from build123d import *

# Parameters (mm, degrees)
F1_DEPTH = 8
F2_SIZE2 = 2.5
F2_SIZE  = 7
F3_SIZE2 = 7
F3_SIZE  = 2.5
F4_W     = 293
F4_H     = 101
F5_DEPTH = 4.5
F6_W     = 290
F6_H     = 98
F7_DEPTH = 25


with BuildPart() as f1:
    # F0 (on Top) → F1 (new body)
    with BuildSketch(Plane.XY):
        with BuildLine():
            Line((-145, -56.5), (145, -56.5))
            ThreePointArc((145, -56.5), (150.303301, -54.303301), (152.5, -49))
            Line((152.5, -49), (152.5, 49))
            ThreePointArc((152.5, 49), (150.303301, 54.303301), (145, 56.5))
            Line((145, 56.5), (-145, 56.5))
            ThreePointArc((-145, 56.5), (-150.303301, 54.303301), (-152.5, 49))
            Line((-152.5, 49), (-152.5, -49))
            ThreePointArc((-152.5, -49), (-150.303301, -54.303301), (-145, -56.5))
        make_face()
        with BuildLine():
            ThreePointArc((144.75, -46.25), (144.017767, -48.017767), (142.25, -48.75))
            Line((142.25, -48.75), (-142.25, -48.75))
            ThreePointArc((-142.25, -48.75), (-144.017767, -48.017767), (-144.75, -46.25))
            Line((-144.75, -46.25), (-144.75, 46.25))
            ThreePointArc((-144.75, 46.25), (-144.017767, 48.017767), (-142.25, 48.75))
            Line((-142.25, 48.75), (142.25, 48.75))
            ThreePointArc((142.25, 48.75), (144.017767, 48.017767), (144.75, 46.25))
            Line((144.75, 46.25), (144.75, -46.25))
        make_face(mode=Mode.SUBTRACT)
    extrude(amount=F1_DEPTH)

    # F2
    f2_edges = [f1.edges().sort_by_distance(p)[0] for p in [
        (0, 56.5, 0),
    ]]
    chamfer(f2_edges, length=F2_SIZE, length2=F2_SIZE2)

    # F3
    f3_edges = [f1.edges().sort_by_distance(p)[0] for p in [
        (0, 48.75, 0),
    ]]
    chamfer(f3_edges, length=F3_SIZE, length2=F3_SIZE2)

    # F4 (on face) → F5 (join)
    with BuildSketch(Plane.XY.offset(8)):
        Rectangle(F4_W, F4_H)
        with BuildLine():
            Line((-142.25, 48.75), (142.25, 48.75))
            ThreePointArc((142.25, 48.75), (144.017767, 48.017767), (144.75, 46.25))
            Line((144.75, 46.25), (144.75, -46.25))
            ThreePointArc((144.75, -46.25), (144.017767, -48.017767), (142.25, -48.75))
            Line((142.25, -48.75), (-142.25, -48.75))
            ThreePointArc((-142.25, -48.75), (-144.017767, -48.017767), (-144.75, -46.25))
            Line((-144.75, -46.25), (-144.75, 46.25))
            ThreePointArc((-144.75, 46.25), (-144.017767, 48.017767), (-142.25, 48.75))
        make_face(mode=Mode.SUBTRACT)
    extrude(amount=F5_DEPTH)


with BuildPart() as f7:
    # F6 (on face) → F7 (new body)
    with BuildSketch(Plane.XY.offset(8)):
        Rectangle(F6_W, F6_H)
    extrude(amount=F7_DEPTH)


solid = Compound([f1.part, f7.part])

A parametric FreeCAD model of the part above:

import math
import FreeCAD as App
import Part
import Sketcher


def edges_at(feature, points):
    """Names of the edges that pass closest to the given points."""
    edges = feature.Shape.Edges
    near = lambda p: min(range(len(edges)), key=lambda i: edges[i].distToShape(Part.Vertex(*p))[0])
    return sorted({f"Edge{near(p) + 1}" for p in points})


def add_polygon(sketch, points):
    """Adds a closed chain of lines whose ends are joined by coincident constraints."""
    first, n = sketch.GeometryCount, len(points)
    for a, b in zip(points, points[1:] + points[:1]):
        sketch.addGeometry(Part.LineSegment(App.Vector(*a, 0), App.Vector(*b, 0)), False)
    for i in range(n):
        sketch.addConstraint(Sketcher.Constraint("Coincident", first + i, 2, first + (i + 1) % n, 1))

doc = App.newDocument("Part")
body = doc.addObject("PartDesign::Body", "Body")

sketch1 = body.newObject("Sketcher::SketchObject", "Sketch")
sketch1.AttachmentSupport = (doc.getObject("XY_Plane"), [""])
sketch1.MapMode = "FlatFace"
sketch1.addGeometry([
    Part.LineSegment(App.Vector(-145, -56.5, 0), App.Vector(145, -56.5, 0)),
    Part.ArcOfCircle(Part.Circle(App.Vector(145, -49, 0), App.Vector(0, 0, 1), 7.5), math.radians(-90.000004), math.radians(0.000004)),
    Part.LineSegment(App.Vector(152.5, -49, 0), App.Vector(152.5, 49, 0)),
    Part.ArcOfCircle(Part.Circle(App.Vector(145, 49, 0), App.Vector(0, 0, 1), 7.5), math.radians(-0.000004), math.radians(90.000004)),
    Part.LineSegment(App.Vector(145, 56.5, 0), App.Vector(-145, 56.5, 0)),
    Part.ArcOfCircle(Part.Circle(App.Vector(-145, 49, 0), App.Vector(0, 0, 1), 7.5), math.radians(89.999996), math.radians(180.000004)),
    Part.LineSegment(App.Vector(-152.5, 49, 0), App.Vector(-152.5, -49, 0)),
    Part.ArcOfCircle(Part.Circle(App.Vector(-145, -49, 0), App.Vector(0, 0, 1), 7.5), math.radians(179.999996), math.radians(270.000004)),
    Part.LineSegment(App.Vector(144.75, 46.25, 0), App.Vector(144.75, -46.25, 0)),
    Part.ArcOfCircle(Part.Circle(App.Vector(142.25, -46.25, 0), App.Vector(0, 0, 1), 2.5), math.radians(-90.000004), math.radians(0.000004)),
    Part.LineSegment(App.Vector(142.25, -48.75, 0), App.Vector(-142.25, -48.75, 0)),
    Part.ArcOfCircle(Part.Circle(App.Vector(-142.25, -46.25, 0), App.Vector(0, 0, 1), 2.5), math.radians(179.999996), math.radians(270.000004)),
    Part.LineSegment(App.Vector(-144.75, -46.25, 0), App.Vector(-144.75, 46.25, 0)),
    Part.ArcOfCircle(Part.Circle(App.Vector(-142.25, 46.25, 0), App.Vector(0, 0, 1), 2.5), math.radians(89.999996), math.radians(180.000004)),
    Part.LineSegment(App.Vector(-142.25, 48.75, 0), App.Vector(142.25, 48.75, 0)),
    Part.ArcOfCircle(Part.Circle(App.Vector(142.25, 46.25, 0), App.Vector(0, 0, 1), 2.5), math.radians(-0.000004), math.radians(90.000004)),
], False)
sketch1.addConstraint([
    Sketcher.Constraint("Tangent", 0, 2, 1, 1),
    Sketcher.Constraint("Tangent", 1, 2, 2, 1),
    Sketcher.Constraint("Tangent", 2, 2, 3, 1),
    Sketcher.Constraint("Tangent", 3, 2, 4, 1),
    Sketcher.Constraint("Tangent", 4, 2, 5, 1),
    Sketcher.Constraint("Tangent", 5, 2, 6, 1),
    Sketcher.Constraint("Tangent", 6, 2, 7, 1),
    Sketcher.Constraint("Tangent", 7, 2, 0, 1),
    Sketcher.Constraint("Tangent", 8, 2, 9, 2),
    Sketcher.Constraint("Tangent", 9, 1, 10, 1),
    Sketcher.Constraint("Tangent", 10, 2, 11, 2),
    Sketcher.Constraint("Tangent", 11, 1, 12, 1),
    Sketcher.Constraint("Tangent", 12, 2, 13, 2),
    Sketcher.Constraint("Tangent", 13, 1, 14, 1),
    Sketcher.Constraint("Tangent", 14, 2, 15, 2),
    Sketcher.Constraint("Tangent", 15, 1, 8, 1),
    Sketcher.Constraint("Horizontal", 0),
    Sketcher.Constraint("Vertical", 2),
    Sketcher.Constraint("Horizontal", 4),
    Sketcher.Constraint("Vertical", 6),
    Sketcher.Constraint("Vertical", 8),
    Sketcher.Constraint("Horizontal", 10),
    Sketcher.Constraint("Vertical", 12),
    Sketcher.Constraint("Horizontal", 14),
    Sketcher.Constraint("Equal", 1, 3),
    Sketcher.Constraint("Equal", 3, 5),
    Sketcher.Constraint("Equal", 5, 7),
    Sketcher.Constraint("Equal", 9, 11),
    Sketcher.Constraint("Equal", 11, 13),
    Sketcher.Constraint("Equal", 13, 15),
    Sketcher.Constraint("Symmetric", 1, 3, 5, 3, -1, 1),
    Sketcher.Constraint("Symmetric", 9, 3, 13, 3, -1, 1),
    Sketcher.Constraint("Radius", 1, 7.5),
    Sketcher.Constraint("Radius", 9, 2.5),
    Sketcher.Constraint("DistanceX", 0, 1, 0, 2, 290.0),
    Sketcher.Constraint("DistanceY", 2, 1, 2, 2, 98.0),
    Sketcher.Constraint("DistanceX", 10, 2, 10, 1, 284.5),
    Sketcher.Constraint("DistanceY", 8, 2, 8, 1, 92.5),
])
pad1 = body.newObject("PartDesign::Pad", "Pad")
pad1.Profile = sketch1
pad1.Length = 8
doc.recompute()

chamfer = body.newObject("PartDesign::Chamfer", "Chamfer")
chamfer.Base = (pad1, edges_at(pad1, [(0, 56.5, 0)]))
chamfer.ChamferType = "Two distances"
chamfer.Size = 7
chamfer.Size2 = 2.5
doc.recompute()

chamfer2 = body.newObject("PartDesign::Chamfer", "Chamfer001")
chamfer2.Base = (chamfer, edges_at(chamfer, [(0, 48.75, 0)]))
chamfer2.ChamferType = "Two distances"
chamfer2.Size = 2.5
chamfer2.Size2 = 7

sketch2 = body.newObject("Sketcher::SketchObject", "Sketch001")
sketch2.AttachmentSupport = (doc.getObject("XY_Plane"), [""])
sketch2.MapMode = "FlatFace"
sketch2.AttachmentOffset = App.Placement(App.Vector(0, 0, 8), App.Rotation())
add_polygon(sketch2, [(-146.5, 50.5), (-146.5, -50.5), (146.5, -50.5), (146.5, 50.5)])
sketch2.addGeometry(Part.ArcOfCircle(Part.Circle(App.Vector(-142.25, 46.25, 0), App.Vector(0, 0, 1), 2.5), math.radians(89.999996), math.radians(180.000004)), False)
sketch2.addGeometry(Part.LineSegment(App.Vector(-142.25, 48.75, 0), App.Vector(142.25, 48.75, 0)), False)
sketch2.addGeometry(Part.ArcOfCircle(Part.Circle(App.Vector(142.25, 46.25, 0), App.Vector(0, 0, 1), 2.5), math.radians(-0.000004), math.radians(90.000004)), False)
sketch2.addGeometry(Part.LineSegment(App.Vector(144.75, 46.25, 0), App.Vector(144.75, -46.25, 0)), False)
sketch2.addGeometry(Part.ArcOfCircle(Part.Circle(App.Vector(142.25, -46.25, 0), App.Vector(0, 0, 1), 2.5), math.radians(-90.000004), math.radians(0.000004)), False)
sketch2.addGeometry(Part.LineSegment(App.Vector(142.25, -48.75, 0), App.Vector(-142.25, -48.75, 0)), False)
sketch2.addGeometry(Part.ArcOfCircle(Part.Circle(App.Vector(-142.25, -46.25, 0), App.Vector(0, 0, 1), 2.5), math.radians(179.999996), math.radians(270.000004)), False)
sketch2.addGeometry(Part.LineSegment(App.Vector(-144.75, -46.25, 0), App.Vector(-144.75, 46.25, 0)), False)
sketch2.addConstraint([
    Sketcher.Constraint("Tangent", 4, 1, 5, 1),
    Sketcher.Constraint("Tangent", 5, 2, 6, 2),
    Sketcher.Constraint("Tangent", 6, 1, 7, 1),
    Sketcher.Constraint("Tangent", 7, 2, 8, 2),
    Sketcher.Constraint("Tangent", 8, 1, 9, 1),
    Sketcher.Constraint("Tangent", 9, 2, 10, 2),
    Sketcher.Constraint("Tangent", 10, 1, 11, 1),
    Sketcher.Constraint("Tangent", 11, 2, 4, 2),
    Sketcher.Constraint("Vertical", 0),
    Sketcher.Constraint("Horizontal", 1),
    Sketcher.Constraint("Vertical", 2),
    Sketcher.Constraint("Horizontal", 3),
    Sketcher.Constraint("Horizontal", 5),
    Sketcher.Constraint("Vertical", 7),
    Sketcher.Constraint("Horizontal", 9),
    Sketcher.Constraint("Vertical", 11),
    Sketcher.Constraint("Equal", 4, 6),
    Sketcher.Constraint("Equal", 6, 8),
    Sketcher.Constraint("Equal", 8, 10),
    Sketcher.Constraint("Symmetric", 4, 3, 8, 3, -1, 1),
    Sketcher.Constraint("Symmetric", 0, 2, 2, 2, -1, 1),
    Sketcher.Constraint("Radius", 4, 2.5),
    Sketcher.Constraint("DistanceX", 1, 1, 1, 2, 293.0),
    Sketcher.Constraint("DistanceY", 0, 2, 0, 1, 101.0),
    Sketcher.Constraint("DistanceX", 5, 1, 5, 2, 284.5),
    Sketcher.Constraint("DistanceY", 7, 2, 7, 1, 92.5),
])
pad2 = body.newObject("PartDesign::Pad", "Pad001")
pad2.Profile = sketch2
pad2.Length = 4.5
body2 = doc.addObject("PartDesign::Body", "Body001")

sketch3 = body2.newObject("Sketcher::SketchObject", "Sketch002")
sketch3.AttachmentSupport = (doc.getObject("XY_Plane001"), [""])
sketch3.MapMode = "FlatFace"
sketch3.AttachmentOffset = App.Placement(App.Vector(0, 0, 8), App.Rotation())
add_polygon(sketch3, [(-145, 49), (-145, -49), (145, -49), (145, 49)])
sketch3.addConstraint([
    Sketcher.Constraint("Vertical", 0),
    Sketcher.Constraint("Horizontal", 1),
    Sketcher.Constraint("Vertical", 2),
    Sketcher.Constraint("Horizontal", 3),
    Sketcher.Constraint("Symmetric", 0, 2, 2, 2, -1, 1),
    Sketcher.Constraint("DistanceX", 1, 1, 1, 2, 290.0),
    Sketcher.Constraint("DistanceY", 0, 2, 0, 1, 98.0),
])
pad3 = body2.newObject("PartDesign::Pad", "Pad002")
pad3.Profile = sketch3
pad3.Length = 25

doc.recompute()
